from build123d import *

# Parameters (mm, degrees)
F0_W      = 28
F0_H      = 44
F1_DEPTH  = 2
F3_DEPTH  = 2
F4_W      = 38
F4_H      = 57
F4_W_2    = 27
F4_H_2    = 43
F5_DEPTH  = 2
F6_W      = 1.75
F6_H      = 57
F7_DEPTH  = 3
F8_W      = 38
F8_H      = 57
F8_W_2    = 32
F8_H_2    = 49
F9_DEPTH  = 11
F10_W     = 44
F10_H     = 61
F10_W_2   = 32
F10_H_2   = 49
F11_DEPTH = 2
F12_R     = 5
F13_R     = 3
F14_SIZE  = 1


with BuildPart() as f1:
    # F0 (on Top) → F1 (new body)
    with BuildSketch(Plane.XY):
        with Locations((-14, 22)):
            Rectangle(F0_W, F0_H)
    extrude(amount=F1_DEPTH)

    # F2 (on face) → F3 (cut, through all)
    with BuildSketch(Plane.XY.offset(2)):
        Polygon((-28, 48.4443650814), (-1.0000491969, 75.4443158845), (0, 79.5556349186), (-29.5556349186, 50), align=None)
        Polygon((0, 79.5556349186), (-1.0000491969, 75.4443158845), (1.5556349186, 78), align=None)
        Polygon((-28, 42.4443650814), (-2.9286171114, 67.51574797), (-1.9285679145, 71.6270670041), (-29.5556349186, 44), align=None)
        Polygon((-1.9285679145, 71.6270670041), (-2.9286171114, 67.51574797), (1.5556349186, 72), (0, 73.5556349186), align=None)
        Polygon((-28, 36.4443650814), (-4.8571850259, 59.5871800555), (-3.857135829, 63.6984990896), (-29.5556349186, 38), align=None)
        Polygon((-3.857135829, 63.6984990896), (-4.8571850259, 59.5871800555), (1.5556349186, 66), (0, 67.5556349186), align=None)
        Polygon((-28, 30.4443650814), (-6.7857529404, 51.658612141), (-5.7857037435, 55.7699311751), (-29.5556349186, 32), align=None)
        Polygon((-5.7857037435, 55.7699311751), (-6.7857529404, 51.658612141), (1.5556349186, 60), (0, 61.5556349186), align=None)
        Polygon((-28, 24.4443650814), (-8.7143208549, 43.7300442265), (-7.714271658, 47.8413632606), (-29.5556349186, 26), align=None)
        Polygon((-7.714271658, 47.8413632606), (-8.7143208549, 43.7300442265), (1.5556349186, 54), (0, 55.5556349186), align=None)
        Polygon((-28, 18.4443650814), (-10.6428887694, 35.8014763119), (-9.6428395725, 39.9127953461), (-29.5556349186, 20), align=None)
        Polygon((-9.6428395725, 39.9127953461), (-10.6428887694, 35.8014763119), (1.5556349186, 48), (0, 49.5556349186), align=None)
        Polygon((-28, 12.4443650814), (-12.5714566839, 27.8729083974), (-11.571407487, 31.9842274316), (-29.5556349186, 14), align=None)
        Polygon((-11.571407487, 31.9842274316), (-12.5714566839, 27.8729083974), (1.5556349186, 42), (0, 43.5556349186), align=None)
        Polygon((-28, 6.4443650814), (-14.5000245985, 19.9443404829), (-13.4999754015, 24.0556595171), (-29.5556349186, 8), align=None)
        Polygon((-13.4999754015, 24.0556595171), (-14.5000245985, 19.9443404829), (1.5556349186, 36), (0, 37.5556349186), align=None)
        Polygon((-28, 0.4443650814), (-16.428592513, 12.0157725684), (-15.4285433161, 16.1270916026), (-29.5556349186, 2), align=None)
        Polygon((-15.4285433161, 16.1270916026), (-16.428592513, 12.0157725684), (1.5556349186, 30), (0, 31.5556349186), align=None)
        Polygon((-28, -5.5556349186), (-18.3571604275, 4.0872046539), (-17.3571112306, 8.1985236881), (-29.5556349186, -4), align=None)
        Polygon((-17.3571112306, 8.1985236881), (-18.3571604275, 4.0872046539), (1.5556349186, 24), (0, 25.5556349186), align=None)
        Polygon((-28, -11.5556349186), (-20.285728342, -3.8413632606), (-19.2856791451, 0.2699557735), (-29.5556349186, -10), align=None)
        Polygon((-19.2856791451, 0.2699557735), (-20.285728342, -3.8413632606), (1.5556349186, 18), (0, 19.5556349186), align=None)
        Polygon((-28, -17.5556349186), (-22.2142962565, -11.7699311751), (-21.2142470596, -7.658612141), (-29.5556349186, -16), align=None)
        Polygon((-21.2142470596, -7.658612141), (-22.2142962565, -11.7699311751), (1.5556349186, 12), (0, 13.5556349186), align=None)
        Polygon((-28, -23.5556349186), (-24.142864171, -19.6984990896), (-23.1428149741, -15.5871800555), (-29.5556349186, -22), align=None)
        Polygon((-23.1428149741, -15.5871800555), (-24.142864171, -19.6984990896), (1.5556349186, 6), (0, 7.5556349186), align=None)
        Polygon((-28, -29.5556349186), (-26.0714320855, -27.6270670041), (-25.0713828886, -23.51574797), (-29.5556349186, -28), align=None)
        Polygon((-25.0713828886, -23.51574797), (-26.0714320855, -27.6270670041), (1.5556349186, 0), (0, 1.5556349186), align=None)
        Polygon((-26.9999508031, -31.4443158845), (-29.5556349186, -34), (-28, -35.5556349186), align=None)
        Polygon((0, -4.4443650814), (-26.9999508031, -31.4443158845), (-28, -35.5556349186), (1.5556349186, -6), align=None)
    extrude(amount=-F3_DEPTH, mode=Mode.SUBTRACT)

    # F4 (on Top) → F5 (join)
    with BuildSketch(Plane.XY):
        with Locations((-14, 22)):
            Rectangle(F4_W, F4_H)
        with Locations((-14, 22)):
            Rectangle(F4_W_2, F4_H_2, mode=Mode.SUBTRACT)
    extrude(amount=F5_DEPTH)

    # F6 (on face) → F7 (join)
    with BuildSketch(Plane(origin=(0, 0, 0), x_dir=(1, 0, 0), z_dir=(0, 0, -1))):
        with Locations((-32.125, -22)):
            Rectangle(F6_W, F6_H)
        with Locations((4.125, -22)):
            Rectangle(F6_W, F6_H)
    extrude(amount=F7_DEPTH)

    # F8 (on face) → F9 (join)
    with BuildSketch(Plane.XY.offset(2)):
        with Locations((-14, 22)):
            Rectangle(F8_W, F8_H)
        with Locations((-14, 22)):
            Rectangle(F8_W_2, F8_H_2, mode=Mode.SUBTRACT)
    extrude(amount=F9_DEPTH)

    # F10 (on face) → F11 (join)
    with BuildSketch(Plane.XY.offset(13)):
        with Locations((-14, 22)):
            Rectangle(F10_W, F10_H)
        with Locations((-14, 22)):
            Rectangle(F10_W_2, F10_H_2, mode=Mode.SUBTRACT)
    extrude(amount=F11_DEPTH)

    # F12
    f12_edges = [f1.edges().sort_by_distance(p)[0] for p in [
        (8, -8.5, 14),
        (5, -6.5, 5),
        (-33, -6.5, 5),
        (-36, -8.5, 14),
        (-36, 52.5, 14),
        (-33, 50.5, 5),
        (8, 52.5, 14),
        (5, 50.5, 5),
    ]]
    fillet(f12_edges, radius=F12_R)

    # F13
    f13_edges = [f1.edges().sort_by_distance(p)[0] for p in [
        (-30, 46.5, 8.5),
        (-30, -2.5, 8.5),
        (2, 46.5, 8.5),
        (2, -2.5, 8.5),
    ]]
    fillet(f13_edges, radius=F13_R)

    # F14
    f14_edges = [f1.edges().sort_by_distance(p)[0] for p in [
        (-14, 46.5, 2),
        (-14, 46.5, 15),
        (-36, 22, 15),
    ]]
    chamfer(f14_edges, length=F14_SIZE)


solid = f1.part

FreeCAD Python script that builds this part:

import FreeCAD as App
import Part
import Sketcher

V = App.Vector
Q = App.Units.Quantity


def edges_at(feature, points):
    """Names of the edges that pass closest to the given points."""
    edges = feature.Shape.Edges
    near = lambda p: min(range(len(edges)), key=lambda i: edges[i].distToShape(Part.Vertex(*p))[0])
    return sorted({f"Edge{near(p) + 1}" for p in points})

doc = App.newDocument("Part")
body = doc.addObject("PartDesign::Body", "Body")
body.AllowCompound = True

# Sketch on XY plane
sketch1 = body.newObject("Sketcher::SketchObject", "Sketch")
sketch1.AttachmentSupport = (doc.getObject("XY_Plane"), [""])
sketch1.MapMode = "FlatFace"
sketch1.addGeometry(Part.LineSegment(V(-28, 44, 0), V(-28, 0, 0)), False)
sketch1.addGeometry(Part.LineSegment(V(-28, 0, 0), V(0, 0, 0)), False)
sketch1.addGeometry(Part.LineSegment(V(0, 0, 0), V(0, 44, 0)), False)
sketch1.addGeometry(Part.LineSegment(V(0, 44, 0), V(-28, 44, 0)), False)
sketch1.addConstraint(Sketcher.Constraint("Coincident", 0, 2, 1, 1))
sketch1.addConstraint(Sketcher.Constraint("Coincident", 1, 2, 2, 1))
sketch1.addConstraint(Sketcher.Constraint("Coincident", 2, 2, 3, 1))
sketch1.addConstraint(Sketcher.Constraint("Coincident", 3, 2, 0, 1))
sketch1.addConstraint(Sketcher.Constraint("Vertical", 0))
sketch1.addConstraint(Sketcher.Constraint("Horizontal", 1))
sketch1.addConstraint(Sketcher.Constraint("Vertical", 2))
sketch1.addConstraint(Sketcher.Constraint("Horizontal", 3))
sketch1.addConstraint(Sketcher.Constraint("Coincident", 1, 2, -1, 1))
sketch1.addConstraint(Sketcher.Constraint("DistanceX", 1, 1, 1, 2, Q("28 mm")))
sketch1.addConstraint(Sketcher.Constraint("DistanceY", 0, 2, 0, 1, Q("44 mm")))
pad1 = body.newObject("PartDesign::Pad", "Pad")
pad1.Profile = sketch1
pad1.Length = 2

# Sketch on XY plane
sketch2 = body.newObject("Sketcher::SketchObject", "Sketch001")
sketch2.AttachmentSupport = (doc.getObject("XY_Plane"), [""])
sketch2.MapMode = "FlatFace"
sketch2.AttachmentOffset = App.Placement(V(0, 0, 2), App.Rotation())
sketch2.addGeometry(Part.LineSegment(V(-28, 48.4, 0), V(1.6, 78, 0)), False)
sketch2.addGeometry(Part.LineSegment(V(1.6, 78, 0), V(0, 79.6, 0)), False)
sketch2.addGeometry(Part.LineSegment(V(0, 79.6, 0), V(-29.6, 50, 0)), False)
sketch2.addGeometry(Part.LineSegment(V(-29.6, 50, 0), V(-28, 48.4, 0)), False)
sketch2.addGeometry(Part.LineSegment(V(-28, 42.4, 0), V(1.6, 72, 0)), False)
sketch2.addGeometry(Part.LineSegment(V(1.6, 72, 0), V(0, 73.6, 0)), False)
sketch2.addGeometry(Part.LineSegment(V(0, 73.6, 0), V(-29.6, 44, 0)), False)
sketch2.addGeometry(Part.LineSegment(V(-29.6, 44, 0), V(-28, 42.4, 0)), False)
sketch2.addGeometry(Part.LineSegment(V(-28, 36.4, 0), V(1.6, 66, 0)), False)
sketch2.addGeometry(Part.LineSegment(V(1.6, 66, 0), V(0, 67.6, 0)), False)
sketch2.addGeometry(Part.LineSegment(V(0, 67.6, 0), V(-29.6, 38, 0)), False)
sketch2.addGeometry(Part.LineSegment(V(-29.6, 38, 0), V(-28, 36.4, 0)), False)
sketch2.addGeometry(Part.LineSegment(V(-28, 30.4, 0), V(1.6, 60, 0)), False)
sketch2.addGeometry(Part.LineSegment(V(1.6, 60, 0), V(0, 61.6, 0)), False)
sketch2.addGeometry(Part.LineSegment(V(0, 61.6, 0), V(-29.6, 32, 0)), False)
sketch2.addGeometry(Part.LineSegment(V(-29.6, 32, 0), V(-28, 30.4, 0)), False)
sketch2.addGeometry(Part.LineSegment(V(-28, 24.4, 0), V(1.6, 54, 0)), False)
sketch2.addGeometry(Part.LineSegment(V(1.6, 54, 0), V(0, 55.6, 0)), False)
sketch2.addGeometry(Part.LineSegment(V(0, 55.6, 0), V(-29.6, 26, 0)), False)
sketch2.addGeometry(Part.LineSegment(V(-29.6, 26, 0), V(-28, 24.4, 0)), False)
sketch2.addGeometry(Part.LineSegment(V(-28, 18.4, 0), V(-10.6, 35.8, 0)), False)
sketch2.addGeometry(Part.LineSegment(V(-10.6, 35.8, 0), V(1.6, 48, 0)), False)
sketch2.addGeometry(Part.LineSegment(V(1.6, 48, 0), V(0, 49.6, 0)), False)
sketch2.addGeometry(Part.LineSegment(V(0, 49.6, 0), V(-29.6, 20, 0)), False)
sketch2.addGeometry(Part.LineSegment(V(-29.6, 20, 0), V(-28, 18.4, 0)), False)
sketch2.addGeometry(Part.LineSegment(V(-28, 12.4, 0), V(-12.6, 27.9, 0)), False)
sketch2.addGeometry(Part.LineSegment(V(-12.6, 27.9, 0), V(1.6, 42, 0)), False)
sketch2.addGeometry(Part.LineSegment(V(1.6, 42, 0), V(0, 43.6, 0)), False)
sketch2.addGeometry(Part.LineSegment(V(0, 43.6, 0), V(-29.6, 14, 0)), False)
sketch2.addGeometry(Part.LineSegment(V(-29.6, 14, 0), V(-28, 12.4, 0)), False)
sketch2.addGeometry(Part.LineSegment(V(-28, 6.4, 0), V(1.6, 36, 0)), False)
sketch2.addGeometry(Part.LineSegment(V(1.6, 36, 0), V(0, 37.6, 0)), False)
sketch2.addGeometry(Part.LineSegment(V(0, 37.6, 0), V(-29.6, 8, 0)), False)
sketch2.addGeometry(Part.LineSegment(V(-29.6, 8, 0), V(-28, 6.4, 0)), False)
sketch2.addGeometry(Part.LineSegment(V(-28, 0.4, 0), V(1.6, 30, 0)), False)
sketch2.addGeometry(Part.LineSegment(V(1.6, 30, 0), V(0, 31.6, 0)), False)
sketch2.addGeometry(Part.LineSegment(V(0, 31.6, 0), V(-15.4, 16.1, 0)), False)
sketch2.addGeometry(Part.LineSegment(V(-15.4, 16.1, 0), V(-29.6, 2, 0)), False)
sketch2.addGeometry(Part.LineSegment(V(-29.6, 2, 0), V(-28, 0.4, 0)), False)
sketch2.addGeometry(Part.LineSegment(V(-28, -5.6, 0), V(1.6, 24, 0)), False)
sketch2.addGeometry(Part.LineSegment(V(1.6, 24, 0), V(0, 25.6, 0)), False)
sketch2.addGeometry(Part.LineSegment(V(0, 25.6, 0), V(-17.4, 8.2, 0)), False)
sketch2.addGeometry(Part.LineSegment(V(-17.4, 8.2, 0), V(-29.6, -4, 0)), False)
sketch2.addGeometry(Part.LineSegment(V(-29.6, -4, 0), V(-28, -5.6, 0)), False)
sketch2.addGeometry(Part.LineSegment(V(-28, -11.6, 0), V(1.6, 18, 0)), False)
sketch2.addGeometry(Part.LineSegment(V(1.6, 18, 0), V(0, 19.6, 0)), False)
sketch2.addGeometry(Part.LineSegment(V(0, 19.6, 0), V(-29.6, -10, 0)), False)
sketch2.addGeometry(Part.LineSegment(V(-29.6, -10, 0), V(-28, -11.6, 0)), False)
sketch2.addGeometry(Part.LineSegment(V(-28, -17.6, 0), V(1.6, 12, 0)), False)
sketch2.addGeometry(Part.LineSegment(V(1.6, 12, 0), V(0, 13.6, 0)), False)
sketch2.addGeometry(Part.LineSegment(V(0, 13.6, 0), V(-29.6, -16, 0)), False)
sketch2.addGeometry(Part.LineSegment(V(-29.6, -16, 0), V(-28, -17.6, 0)), False)
sketch2.addGeometry(Part.LineSegment(V(-28, -23.6, 0), V(1.6, 6, 0)), False)
sketch2.addGeometry(Part.LineSegment(V(1.6, 6, 0), V(0, 7.6, 0)), False)
sketch2.addGeometry(Part.LineSegment(V(0, 7.6, 0), V(-29.6, -22, 0)), False)
sketch2.addGeometry(Part.LineSegment(V(-29.6, -22, 0), V(-28, -23.6, 0)), False)
sketch2.addGeometry(Part.LineSegment(V(-28, -29.6, 0), V(1.6, 0, 0)), False)
sketch2.addGeometry(Part.LineSegment(V(1.6, 0, 0), V(0, 1.6, 0)), False)
sketch2.addGeometry(Part.LineSegment(V(0, 1.6, 0), V(-29.6, -28, 0)), False)
sketch2.addGeometry(Part.LineSegment(V(-29.6, -28, 0), V(-28, -29.6, 0)), False)
sketch2.addGeometry(Part.LineSegment(V(-29.6, -34, 0), V(-28, -35.6, 0)), False)
sketch2.addGeometry(Part.LineSegment(V(-28, -35.6, 0), V(1.6, -6, 0)), False)
sketch2.addGeometry(Part.LineSegment(V(1.6, -6, 0), V(0, -4.4, 0)), False)
sketch2.addGeometry(Part.LineSegment(V(0, -4.4, 0), V(-29.6, -34, 0)), False)
sketch2.addConstraint(Sketcher.Constraint("Coincident", 0, 2, 1, 1))
sketch2.addConstraint(Sketcher.Constraint("Coincident", 1, 2, 2, 1))
sketch2.addConstraint(Sketcher.Constraint("Coincident", 2, 2, 3, 1))
sketch2.addConstraint(Sketcher.Constraint("Coincident", 3, 2, 0, 1))
sketch2.addConstraint(Sketcher.Constraint("Coincident", 4, 2, 5, 1))
sketch2.addConstraint(Sketcher.Constraint("Coincident", 5, 2, 6, 1))
sketch2.addConstraint(Sketcher.Constraint("Coincident", 6, 2, 7, 1))
sketch2.addConstraint(Sketcher.Constraint("Coincident", 7, 2, 4, 1))
sketch2.addConstraint(Sketcher.Constraint("Coincident", 8, 2, 9, 1))
sketch2.addConstraint(Sketcher.Constraint("Coincident", 9, 2, 10, 1))
sketch2.addConstraint(Sketcher.Constraint("Coincident", 10, 2, 11, 1))
sketch2.addConstraint(Sketcher.Constraint("Coincident", 11, 2, 8, 1))
sketch2.addConstraint(Sketcher.Constraint("Coincident", 12, 2, 13, 1))
sketch2.addConstraint(Sketcher.Constraint("Coincident", 13, 2, 14, 1))
sketch2.addConstraint(Sketcher.Constraint("Coincident", 14, 2, 15, 1))
sketch2.addConstraint(Sketcher.Constraint("Coincident", 15, 2, 12, 1))
sketch2.addConstraint(Sketcher.Constraint("Coincident", 16, 2, 17, 1))
sketch2.addConstraint(Sketcher.Constraint("Coincident", 17, 2, 18, 1))
sketch2.addConstraint(Sketcher.Constraint("Coincident", 18, 2, 19, 1))
sketch2.addConstraint(Sketcher.Constraint("Coincident", 19, 2, 16, 1))
sketch2.addConstraint(Sketcher.Constraint("Coincident", 20, 2, 21, 1))
sketch2.addConstraint(Sketcher.Constraint("Coincident", 21, 2, 22, 1))
sketch2.addConstraint(Sketcher.Constraint("Coincident", 22, 2, 23, 1))
sketch2.addConstraint(Sketcher.Constraint("Coincident", 23, 2, 24, 1))
sketch2.addConstraint(Sketcher.Constraint("Coincident", 24, 2, 20, 1))
sketch2.addConstraint(Sketcher.Constraint("Coincident", 25, 2, 26, 1))
sketch2.addConstraint(Sketcher.Constraint("Coincident", 26, 2, 27, 1))
sketch2.addConstraint(Sketcher.Constraint("Coincident", 27, 2, 28, 1))
sketch2.addConstraint(Sketcher.Constraint("Coincident", 28, 2, 29, 1))
sketch2.addConstraint(Sketcher.Constraint("Coincident", 29, 2, 25, 1))
sketch2.addConstraint(Sketcher.Constraint("Coincident", 30, 2, 31, 1))
sketch2.addConstraint(Sketcher.Constraint("Coincident", 31, 2, 32, 1))
sketch2.addConstraint(Sketcher.Constraint("Coincident", 32, 2, 33, 1))
sketch2.addConstraint(Sketcher.Constraint("Coincident", 33, 2, 30, 1))
sketch2.addConstraint(Sketcher.Constraint("Coincident", 34, 2, 35, 1))
sketch2.addConstraint(Sketcher.Constraint("Coincident", 35, 2, 36, 1))
sketch2.addConstraint(Sketcher.Constraint("Coincident", 36, 2, 37, 1))
sketch2.addConstraint(Sketcher.Constraint("Coincident", 37, 2, 38, 1))
sketch2.addConstraint(Sketcher.Constraint("Coincident", 38, 2, 34, 1))
sketch2.addConstraint(Sketcher.Constraint("Coincident", 39, 2, 40, 1))
sketch2.addConstraint(Sketcher.Constraint("Coincident", 40, 2, 41, 1))
sketch2.addConstraint(Sketcher.Constraint("Coincident", 41, 2, 42, 1))
sketch2.addConstraint(Sketcher.Constraint("Coincident", 42, 2, 43, 1))
sketch2.addConstraint(Sketcher.Constraint("Coincident", 43, 2, 39, 1))
sketch2.addConstraint(Sketcher.Constraint("Coincident", 44, 2, 45, 1))
sketch2.addConstraint(Sketcher.Constraint("Coincident", 45, 2, 46, 1))
sketch2.addConstraint(Sketcher.Constraint("Coincident", 46, 2, 47, 1))
sketch2.addConstraint(Sketcher.Constraint("Coincident", 47, 2, 44, 1))
sketch2.addConstraint(Sketcher.Constraint("Coincident", 48, 2, 49, 1))
sketch2.addConstraint(Sketcher.Constraint("Coincident", 49, 2, 50, 1))
sketch2.addConstraint(Sketcher.Constraint("Coincident", 50, 2, 51, 1))
sketch2.addConstraint(Sketcher.Constraint("Coincident", 51, 2, 48, 1))
sketch2.addConstraint(Sketcher.Constraint("Coincident", 52, 2, 53, 1))
sketch2.addConstraint(Sketcher.Constraint("Coincident", 53, 2, 54, 1))
sketch2.addConstraint(Sketcher.Constraint("Coincident", 54, 2, 55, 1))
sketch2.addConstraint(Sketcher.Constraint("Coincident", 55, 2, 52, 1))
sketch2.addConstraint(Sketcher.Constraint("Coincident", 56, 2, 57, 1))
sketch2.addConstraint(Sketcher.Constraint("Coincident", 57, 2, 58, 1))
sketch2.addConstraint(Sketcher.Constraint("Coincident", 58, 2, 59, 1))
sketch2.addConstraint(Sketcher.Constraint("Coincident", 59, 2, 56, 1))
sketch2.addConstraint(Sketcher.Constraint("Coincident", 60, 2, 61, 1))
sketch2.addConstraint(Sketcher.Constraint("Coincident", 61, 2, 62, 1))
sketch2.addConstraint(Sketcher.Constraint("Coincident", 62, 2, 63, 1))
sketch2.addConstraint(Sketcher.Constraint("Coincident", 63, 2, 60, 1))
sketch2.addConstraint(Sketcher.Constraint("Symmetric", 52, 2, 61, 2, -1))
sketch2.addConstraint(Sketcher.Constraint("PointOnObject", 1, 2, -2))
sketch2.addConstraint(Sketcher.Constraint("PointOnObject", 5, 2, -2))
sketch2.addConstraint(Sketcher.Constraint("PointOnObject", 9, 2, -2))
sketch2.addConstraint(Sketcher.Constraint("PointOnObject", 13, 2, -2))
sketch2.addConstraint(Sketcher.Constraint("PointOnObject", 17, 2, -2))
sketch2.addConstraint(Sketcher.Constraint("PointOnObject", 22, 2, -2))
sketch2.addConstraint(Sketcher.Constraint("PointOnObject", 27, 2, -2))
sketch2.addConstraint(Sketcher.Constraint("PointOnObject", 31, 2, -2))
sketch2.addConstraint(Sketcher.Constraint("PointOnObject", 35, 2, -2))
sketch2.addConstraint(Sketcher.Constraint("PointOnObject", 40, 2, -2))
sketch2.addConstraint(Sketcher.Constraint("PointOnObject", 45, 2, -2))
sketch2.addConstraint(Sketcher.Constraint("PointOnObject", 49, 2, -2))
sketch2.addConstraint(Sketcher.Constraint("PointOnObject", 53, 2, -2))
sketch2.addConstraint(Sketcher.Constraint("PointOnObject", 56, 2, -1))
sketch2.addConstraint(Sketcher.Constraint("PointOnObject", 57, 2, -2))
sketch2.addConstraint(Sketcher.Constraint("PointOnObject", 62, 2, -2))
sketch2.addConstraint(Sketcher.Constraint("Perpendicular", 0, 1))
sketch2.addConstraint(Sketcher.Constraint("Perpendicular", 1, 2))
sketch2.addConstraint(Sketcher.Constraint("Perpendicular", 2, 3))
sketch2.addConstraint(Sketcher.Constraint("Perpendicular", 3, 4))
sketch2.addConstraint(Sketcher.Constraint("Perpendicular", 4, 5))
sketch2.addConstraint(Sketcher.Constraint("Perpendicular", 5, 6))
sketch2.addConstraint(Sketcher.Constraint("Perpendicular", 6, 7))
sketch2.addConstraint(Sketcher.Constraint("Perpendicular", 7, 8))
sketch2.addConstraint(Sketcher.Constraint("Perpendicular", 8, 9))
sketch2.addConstraint(Sketcher.Constraint("Perpendicular", 9, 10))
sketch2.addConstraint(Sketcher.Constraint("Perpendicular", 10, 11))
sketch2.addConstraint(Sketcher.Constraint("Perpendicular", 11, 12))
sketch2.addConstraint(Sketcher.Constraint("Perpendicular", 12, 13))
sketch2.addConstraint(Sketcher.Constraint("Perpendicular", 13, 14))
sketch2.addConstraint(Sketcher.Constraint("Perpendicular", 14, 15))
sketch2.addConstraint(Sketcher.Constraint("Perpendicular", 15, 16))
sketch2.addConstraint(Sketcher.Constraint("Perpendicular", 16, 17))
sketch2.addConstraint(Sketcher.Constraint("Perpendicular", 17, 18))
sketch2.addConstraint(Sketcher.Constraint("Perpendicular", 18, 19))
sketch2.addConstraint(Sketcher.Constraint("Perpendicular", 19, 20))
sketch2.addConstraint(Sketcher.Constraint("Parallel", 20, 21))
sketch2.addConstraint(Sketcher.Constraint("Perpendicular", 21, 22))
sketch2.addConstraint(Sketcher.Constraint("Perpendicular", 22, 23))
sketch2.addConstraint(Sketcher.Constraint("Perpendicular", 23, 24))
sketch2.addConstraint(Sketcher.Constraint("Perpendicular", 24, 25))
sketch2.addConstraint(Sketcher.Constraint("Parallel", 25, 26))
sketch2.addConstraint(Sketcher.Constraint("Perpendicular", 26, 27))
sketch2.addConstraint(Sketcher.Constraint("Perpendicular", 27, 28))
sketch2.addConstraint(Sketcher.Constraint("Perpendicular", 28, 29))
sketch2.addConstraint(Sketcher.Constraint("Perpendicular", 29, 30))
sketch2.addConstraint(Sketcher.Constraint("Perpendicular", 30, 31))
sketch2.addConstraint(Sketcher.Constraint("Perpendicular", 31, 32))
sketch2.addConstraint(Sketcher.Constraint("Perpendicular", 32, 33))
sketch2.addConstraint(Sketcher.Constraint("Perpendicular", 33, 34))
sketch2.addConstraint(Sketcher.Constraint("Perpendicular", 34, 35))
sketch2.addConstraint(Sketcher.Constraint("Perpendicular", 35, 36))
sketch2.addConstraint(Sketcher.Constraint("Parallel", 36, 37))
sketch2.addConstraint(Sketcher.Constraint("Perpendicular", 37, 38))
sketch2.addConstraint(Sketcher.Constraint("Perpendicular", 38, 39))
sketch2.addConstraint(Sketcher.Constraint("Perpendicular", 39, 40))
sketch2.addConstraint(Sketcher.Constraint("Perpendicular", 40, 41))
sketch2.addConstraint(Sketcher.Constraint("Parallel", 41, 42))
sketch2.addConstraint(Sketcher.Constraint("Perpendicular", 42, 43))
sketch2.addConstraint(Sketcher.Constraint("Perpendicular", 43, 44))
sketch2.addConstraint(Sketcher.Constraint("Perpendicular", 44, 45))
sketch2.addConstraint(Sketcher.Constraint("Perpendicular", 45, 46))
sketch2.addConstraint(Sketcher.Constraint("Perpendicular", 46, 47))
sketch2.addConstraint(Sketcher.Constraint("Perpendicular", 47, 48))
sketch2.addConstraint(Sketcher.Constraint("Perpendicular", 48, 49))
sketch2.addConstraint(Sketcher.Constraint("Perpendicular", 49, 50))
sketch2.addConstraint(Sketcher.Constraint("Perpendicular", 50, 51))
sketch2.addConstraint(Sketcher.Constraint("Perpendicular", 51, 52))
sketch2.addConstraint(Sketcher.Constraint("Perpendicular", 52, 53))
sketch2.addConstraint(Sketcher.Constraint("Perpendicular", 53, 54))
sketch2.addConstraint(Sketcher.Constraint("Perpendicular", 54, 55))
sketch2.addConstraint(Sketcher.Constraint("Perpendicular", 55, 56))
sketch2.addConstraint(Sketcher.Constraint("Perpendicular", 56, 57))
sketch2.addConstraint(Sketcher.Constraint("Perpendicular", 57, 58))
sketch2.addConstraint(Sketcher.Constraint("Perpendicular", 58, 59))
sketch2.addConstraint(Sketcher.Constraint("Parallel", 59, 60))
sketch2.addConstraint(Sketcher.Constraint("Perpendicular", 60, 61))
sketch2.addConstraint(Sketcher.Constraint("Perpendicular", 61, 62))
sketch2.addConstraint(Sketcher.Constraint("Perpendicular", 62, 63))
sketch2.addConstraint(Sketcher.Constraint("Vertical", 0, 2, 4, 2))
sketch2.addConstraint(Sketcher.Constraint("Vertical", 2, 2, 6, 2))
sketch2.addConstraint(Sketcher.Constraint("Vertical", 4, 2, 8, 2))
sketch2.addConstraint(Sketcher.Constraint("Vertical", 6, 2, 10, 2))
sketch2.addConstraint(Sketcher.Constraint("Vertical", 8, 2, 12, 2))
sketch2.addConstraint(Sketcher.Constraint("Vertical", 10, 2, 14, 2))
sketch2.addConstraint(Sketcher.Constraint("Vertical", 12, 2, 16, 2))
sketch2.addConstraint(Sketcher.Constraint("Vertical", 14, 2, 18, 2))
sketch2.addConstraint(Sketcher.Constraint("Vertical", 16, 2, 21, 2))
sketch2.addConstraint(Sketcher.Constraint("Vertical", 18, 2, 23, 2))
sketch2.addConstraint(Sketcher.Constraint("Vertical", 21, 2, 26, 2))
sketch2.addConstraint(Sketcher.Constraint("Vertical", 23, 2, 28, 2))
sketch2.addConstraint(Sketcher.Constraint("Vertical", 26, 2, 30, 2))
sketch2.addConstraint(Sketcher.Constraint("Vertical", 28, 2, 32, 2))
sketch2.addConstraint(Sketcher.Constraint("Vertical", 30, 2, 34, 2))
sketch2.addConstraint(Sketcher.Constraint("Vertical", 32, 2, 37, 2))
sketch2.addConstraint(Sketcher.Constraint("Vertical", 34, 2, 39, 2))
sketch2.addConstraint(Sketcher.Constraint("Vertical", 37, 2, 42, 2))
sketch2.addConstraint(Sketcher.Constraint("Vertical", 39, 2, 44, 2))
sketch2.addConstraint(Sketcher.Constraint("Vertical", 42, 2, 46, 2))
sketch2.addConstraint(Sketcher.Constraint("Vertical", 44, 2, 48, 2))
sketch2.addConstraint(Sketcher.Constraint("Vertical", 46, 2, 50, 2))
sketch2.addConstraint(Sketcher.Constraint("Vertical", 48, 2, 52, 2))
sketch2.addConstraint(Sketcher.Constraint("Vertical", 50, 2, 54, 2))
sketch2.addConstraint(Sketcher.Constraint("Vertical", 52, 2, 56, 2))
sketch2.addConstraint(Sketcher.Constraint("Vertical", 54, 2, 58, 2))
sketch2.addConstraint(Sketcher.Constraint("Vertical", 59, 2, 60, 2))
sketch2.addConstraint(Sketcher.Constraint("Equal", 25, 36))
sketch2.addConstraint(Sketcher.Constraint("Equal", 20, 41))
sketch2.addConstraint(Sketcher.Constraint("Angle", 0, Q("45 deg")))
sketch2.addConstraint(Sketcher.Constraint("DistanceY", -1, 1, 0, 2, Q("78 mm")))
sketch2.addConstraint(Sketcher.Constraint("DistanceY", -1, 1, 2, 2, Q("50 mm")))
sketch2.addConstraint(Sketcher.Constraint("DistanceY", -1, 1, 4, 2, Q("72 mm")))
sketch2.addConstraint(Sketcher.Constraint("DistanceY", -1, 1, 8, 2, Q("66 mm")))
sketch2.addConstraint(Sketcher.Constraint("DistanceY", -1, 1, 12, 2, Q("60 mm")))
sketch2.addConstraint(Sketcher.Constraint("DistanceY", -1, 1, 16, 2, Q("54 mm")))
sketch2.addConstraint(Sketcher.Constraint("DistanceY", -1, 1, 21, 2, Q("48 mm")))
sketch2.addConstraint(Sketcher.Constraint("DistanceY", -1, 1, 26, 2, Q("42 mm")))
sketch2.addConstraint(Sketcher.Constraint("DistanceY", -1, 1, 30, 2, Q("36 mm")))
sketch2.addConstraint(Sketcher.Constraint("DistanceY", -1, 1, 34, 2, Q("30 mm")))
sketch2.addConstraint(Sketcher.Constraint("DistanceY", -1, 1, 39, 2, Q("24 mm")))
sketch2.addConstraint(Sketcher.Constraint("DistanceY", -1, 1, 44, 2, Q("18 mm")))
sketch2.addConstraint(Sketcher.Constraint("DistanceY", -1, 1, 48, 2, Q("12 mm")))
sketch2.addConstraint(Sketcher.Constraint("DistanceY", -1, 1, 52, 2, Q("6 mm")))
sketch2.addConstraint(Sketcher.Constraint("Distance", 1, Q("2.2 mm")))
sketch2.addConstraint(Sketcher.Constraint("DistanceX", 20, 2, -1, 1, Q("10.642889 mm")))
sketch2.addConstraint(Sketcher.Constraint("DistanceY", -1, 1, 25, 2, Q("27.872908 mm")))
pocket1 = body.newObject("PartDesign::Pocket", "Pocket")
pocket1.Profile = sketch2
pocket1.Type = "ThroughAll"

# Sketch on XY plane
sketch3 = body.newObject("Sketcher::SketchObject", "Sketch002")
sketch3.AttachmentSupport = (doc.getObject("XY_Plane"), [""])
sketch3.MapMode = "FlatFace"
sketch3.addGeometry(Part.LineSegment(V(-33, 50, 0), V(-33, -6, 0)), False)
sketch3.addGeometry(Part.LineSegment(V(-33, -6, 0), V(5, -6, 0)), False)
sketch3.addGeometry(Part.LineSegment(V(5, -6, 0), V(5, 50, 0)), False)
sketch3.addGeometry(Part.LineSegment(V(5, 50, 0), V(-33, 50, 0)), False)
sketch3.addGeometry(Part.LineSegment(V(0, 0, 0), V(-28, 0, 0)), False)
sketch3.addGeometry(Part.LineSegment(V(-28, 0, 0), V(-28, 44, 0)), False)
sketch3.addGeometry(Part.LineSegment(V(-28, 44, 0), V(0, 44, 0)), False)
sketch3.addGeometry(Part.LineSegment(V(0, 44, 0), V(0, 0, 0)), False)
sketch3.addConstraint(Sketcher.Constraint("Coincident", 0, 2, 1, 1))
sketch3.addConstraint(Sketcher.Constraint("Coincident", 1, 2, 2, 1))
sketch3.addConstraint(Sketcher.Constraint("Coincident", 2, 2, 3, 1))
sketch3.addConstraint(Sketcher.Constraint("Coincident", 3, 2, 0, 1))
sketch3.addConstraint(Sketcher.Constraint("Coincident", 4, 2, 5, 1))
sketch3.addConstraint(Sketcher.Constraint("Coincident", 5, 2, 6, 1))
sketch3.addConstraint(Sketcher.Constraint("Coincident", 6, 2, 7, 1))
sketch3.addConstraint(Sketcher.Constraint("Coincident", 7, 2, 4, 1))
sketch3.addConstraint(Sketcher.Constraint("Vertical", 0))
sketch3.addConstraint(Sketcher.Constraint("Horizontal", 1))
sketch3.addConstraint(Sketcher.Constraint("Vertical", 2))
sketch3.addConstraint(Sketcher.Constraint("Horizontal", 3))
sketch3.addConstraint(Sketcher.Constraint("Horizontal", 4))
sketch3.addConstraint(Sketcher.Constraint("Vertical", 5))
sketch3.addConstraint(Sketcher.Constraint("Horizontal", 6))
sketch3.addConstraint(Sketcher.Constraint("Vertical", 7))
sketch3.addConstraint(Sketcher.Constraint("DistanceX", 1, 1, 1, 2, Q("38 mm")))
sketch3.addConstraint(Sketcher.Constraint("DistanceX", 4, 2, 4, 1, Q("27 mm")))
sketch3.addConstraint(Sketcher.Constraint("DistanceY", 0, 2, 0, 1, Q("57 mm")))
sketch3.addConstraint(Sketcher.Constraint("DistanceY", 5, 1, 5, 2, Q("43 mm")))
sketch3.addConstraint(Sketcher.Constraint("DistanceX", 0, 2, -1, 1, Q("33 mm")))
sketch3.addConstraint(Sketcher.Constraint("DistanceY", 0, 2, 4, 2, Q("7 mm")))
sketch3.addConstraint(Sketcher.Constraint("DistanceY", 0, 2, -1, 1, Q("6.5 mm")))
sketch3.addConstraint(Sketcher.Constraint("DistanceX", 4, 2, -1, 1, Q("27.5 mm")))
pad2 = body.newObject("PartDesign::Pad", "Pad001")
pad2.Profile = sketch3
pad2.Length = 2

# Sketch on XY plane
sketch4 = body.newObject("Sketcher::SketchObject", "Sketch003")
sketch4.AttachmentSupport = (doc.getObject("XY_Plane"), [""])
sketch4.MapMode = "FlatFace"
sketch4.addGeometry(Part.LineSegment(V(-33, -6.5, 0), V(-33, 50.5, 0)), False)
sketch4.addGeometry(Part.LineSegment(V(-33, 50.5, 0), V(-31.2, 50.5, 0)), False)
sketch4.addGeometry(Part.LineSegment(V(-31.2, 50.5, 0), V(-31.2, -6.5, 0)), False)
sketch4.addGeometry(Part.LineSegment(V(-31.2, -6.5, 0), V(-33, -6.5, 0)), False)
sketch4.addGeometry(Part.LineSegment(V(3.2, -6.5, 0), V(3.2, 50.5, 0)), False)
sketch4.addGeometry(Part.LineSegment(V(3.2, 50.5, 0), V(5, 50.5, 0)), False)
sketch4.addGeometry(Part.LineSegment(V(5, 50.5, 0), V(5, -6.5, 0)), False)
sketch4.addGeometry(Part.LineSegment(V(5, -6.5, 0), V(3.2, -6.5, 0)), False)
sketch4.addConstraint(Sketcher.Constraint("Coincident", 0, 2, 1, 1))
sketch4.addConstraint(Sketcher.Constraint("Coincident", 1, 2, 2, 1))
sketch4.addConstraint(Sketcher.Constraint("Coincident", 2, 2, 3, 1))
sketch4.addConstraint(Sketcher.Constraint("Coincident", 3, 2, 0, 1))
sketch4.addConstraint(Sketcher.Constraint("Coincident", 4, 2, 5, 1))
sketch4.addConstraint(Sketcher.Constraint("Coincident", 5, 2, 6, 1))
sketch4.addConstraint(Sketcher.Constraint("Coincident", 6, 2, 7, 1))
sketch4.addConstraint(Sketcher.Constraint("Coincident", 7, 2, 4, 1))
sketch4.addConstraint(Sketcher.Constraint("Vertical", 0))
sketch4.addConstraint(Sketcher.Constraint("Horizontal", 1))
sketch4.addConstraint(Sketcher.Constraint("Vertical", 2))
sketch4.addConstraint(Sketcher.Constraint("Horizontal", 3))
sketch4.addConstraint(Sketcher.Constraint("Vertical", 4))
sketch4.addConstraint(Sketcher.Constraint("Horizontal", 5))
sketch4.addConstraint(Sketcher.Constraint("Vertical", 6))
sketch4.addConstraint(Sketcher.Constraint("Horizontal", 7))
sketch4.addConstraint(Sketcher.Constraint("Horizontal", 1, 2, 4, 2))
sketch4.addConstraint(Sketcher.Constraint("Horizontal", 3, 2, 6, 2))
sketch4.addConstraint(Sketcher.Constraint("Equal", 3, 5))
sketch4.addConstraint(Sketcher.Constraint("DistanceY", 0, 1, 0, 2, Q("57 mm")))
sketch4.addConstraint(Sketcher.Constraint("DistanceX", 0, 2, -1, 1, Q("33 mm")))
sketch4.addConstraint(Sketcher.Constraint("DistanceX", -1, 1, 5, 2, Q("5 mm")))
sketch4.addConstraint(Sketcher.Constraint("DistanceX", 1, 1, 1, 2, Q("1.75 mm")))
sketch4.addConstraint(Sketcher.Constraint("DistanceY", -1, 1, 0, 2, Q("50.5 mm")))
pad3 = body.newObject("PartDesign::Pad", "Pad002")
pad3.Profile = sketch4
pad3.Length = 3
pad3.Reversed = True

# Sketch on XY plane
sketch5 = body.newObject("Sketcher::SketchObject", "Sketch004")
sketch5.AttachmentSupport = (doc.getObject("XY_Plane"), [""])
sketch5.MapMode = "FlatFace"
sketch5.AttachmentOffset = App.Placement(V(0, 0, 2), App.Rotation())
sketch5.addGeometry(Part.LineSegment(V(-33, 50, 0), V(-33, -6, 0)), False)
sketch5.addGeometry(Part.LineSegment(V(-33, -6, 0), V(5, -6, 0)), False)
sketch5.addGeometry(Part.LineSegment(V(5, -6, 0), V(5, 50, 0)), False)
sketch5.addGeometry(Part.LineSegment(V(5, 50, 0), V(-33, 50, 0)), False)
sketch5.addGeometry(Part.LineSegment(V(2, -2, 0), V(-30, -2, 0)), False)
sketch5.addGeometry(Part.LineSegment(V(-30, -2, 0), V(-30, 46, 0)), False)
sketch5.addGeometry(Part.LineSegment(V(-30, 46, 0), V(2, 46, 0)), False)
sketch5.addGeometry(Part.LineSegment(V(2, 46, 0), V(2, -2, 0)), False)
sketch5.addConstraint(Sketcher.Constraint("Coincident", 0, 2, 1, 1))
sketch5.addConstraint(Sketcher.Constraint("Coincident", 1, 2, 2, 1))
sketch5.addConstraint(Sketcher.Constraint("Coincident", 2, 2, 3, 1))
sketch5.addConstraint(Sketcher.Constraint("Coincident", 3, 2, 0, 1))
sketch5.addConstraint(Sketcher.Constraint("Coincident", 4, 2, 5, 1))
sketch5.addConstraint(Sketcher.Constraint("Coincident", 5, 2, 6, 1))
sketch5.addConstraint(Sketcher.Constraint("Coincident", 6, 2, 7, 1))
sketch5.addConstraint(Sketcher.Constraint("Coincident", 7, 2, 4, 1))
sketch5.addConstraint(Sketcher.Constraint("Vertical", 0))
sketch5.addConstraint(Sketcher.Constraint("Horizontal", 1))
sketch5.addConstraint(Sketcher.Constraint("Vertical", 2))
sketch5.addConstraint(Sketcher.Constraint("Horizontal", 3))
sketch5.addConstraint(Sketcher.Constraint("Horizontal", 4))
sketch5.addConstraint(Sketcher.Constraint("Vertical", 5))
sketch5.addConstraint(Sketcher.Constraint("Horizontal", 6))
sketch5.addConstraint(Sketcher.Constraint("Vertical", 7))
sketch5.addConstraint(Sketcher.Constraint("DistanceX", 1, 1, 1, 2, Q("38 mm")))
sketch5.addConstraint(Sketcher.Constraint("DistanceX", 4, 2, 4, 1, Q("32 mm")))
sketch5.addConstraint(Sketcher.Constraint("DistanceY", 0, 2, 0, 1, Q("57 mm")))
sketch5.addConstraint(Sketcher.Constraint("DistanceY", 5, 1, 5, 2, Q("49 mm")))
sketch5.addConstraint(Sketcher.Constraint("DistanceX", 0, 2, -1, 1, Q("33 mm")))
sketch5.addConstraint(Sketcher.Constraint("DistanceX", 4, 2, -1, 1, Q("30 mm")))
sketch5.addConstraint(Sketcher.Constraint("DistanceY", 0, 2, 4, 2, Q("4 mm")))
sketch5.addConstraint(Sketcher.Constraint("DistanceY", 0, 2, -1, 1, Q("6.5 mm")))
pad4 = body.newObject("PartDesign::Pad", "Pad003")
pad4.Profile = sketch5
pad4.Length = 11

# Sketch on XY plane
sketch6 = body.newObject("Sketcher::SketchObject", "Sketch005")
sketch6.AttachmentSupport = (doc.getObject("XY_Plane"), [""])
sketch6.MapMode = "FlatFace"
sketch6.AttachmentOffset = App.Placement(V(0, 0, 13), App.Rotation())
sketch6.addGeometry(Part.LineSegment(V(-36, 52, 0), V(-36, -8, 0)), False)
sketch6.addGeometry(Part.LineSegment(V(-36, -8, 0), V(8, -8, 0)), False)
sketch6.addGeometry(Part.LineSegment(V(8, -8, 0), V(8, 52, 0)), False)
sketch6.addGeometry(Part.LineSegment(V(8, 52, 0), V(-36, 52, 0)), False)
sketch6.addGeometry(Part.LineSegment(V(2, -2, 0), V(-30, -2, 0)), False)
sketch6.addGeometry(Part.LineSegment(V(-30, -2, 0), V(-30, 46, 0)), False)
sketch6.addGeometry(Part.LineSegment(V(-30, 46, 0), V(2, 46, 0)), False)
sketch6.addGeometry(Part.LineSegment(V(2, 46, 0), V(2, -2, 0)), False)
sketch6.addConstraint(Sketcher.Constraint("Coincident", 0, 2, 1, 1))
sketch6.addConstraint(Sketcher.Constraint("Coincident", 1, 2, 2, 1))
sketch6.addConstraint(Sketcher.Constraint("Coincident", 2, 2, 3, 1))
sketch6.addConstraint(Sketcher.Constraint("Coincident", 3, 2, 0, 1))
sketch6.addConstraint(Sketcher.Constraint("Coincident", 4, 2, 5, 1))
sketch6.addConstraint(Sketcher.Constraint("Coincident", 5, 2, 6, 1))
sketch6.addConstraint(Sketcher.Constraint("Coincident", 6, 2, 7, 1))
sketch6.addConstraint(Sketcher.Constraint("Coincident", 7, 2, 4, 1))
sketch6.addConstraint(Sketcher.Constraint("Vertical", 0))
sketch6.addConstraint(Sketcher.Constraint("Horizontal", 1))
sketch6.addConstraint(Sketcher.Constraint("Vertical", 2))
sketch6.addConstraint(Sketcher.Constraint("Horizontal", 3))
sketch6.addConstraint(Sketcher.Constraint("Horizontal", 4))
sketch6.addConstraint(Sketcher.Constraint("Vertical", 5))
sketch6.addConstraint(Sketcher.Constraint("Horizontal", 6))
sketch6.addConstraint(Sketcher.Constraint("Vertical", 7))
sketch6.addConstraint(Sketcher.Constraint("DistanceX", 1, 1, 1, 2, Q("44 mm")))
sketch6.addConstraint(Sketcher.Constraint("DistanceX", 4, 2, 4, 1, Q("32 mm")))
sketch6.addConstraint(Sketcher.Constraint("DistanceY", 0, 2, 0, 1, Q("61 mm")))
sketch6.addConstraint(Sketcher.Constraint("DistanceY", 5, 1, 5, 2, Q("49 mm")))
sketch6.addConstraint(Sketcher.Constraint("DistanceX", 0, 2, -1, 1, Q("36 mm")))
sketch6.addConstraint(Sketcher.Constraint("DistanceX", 4, 2, -1, 1, Q("30 mm")))
sketch6.addConstraint(Sketcher.Constraint("DistanceY", 0, 2, 4, 2, Q("6 mm")))
sketch6.addConstraint(Sketcher.Constraint("DistanceY", 0, 2, -1, 1, Q("8.5 mm")))
pad5 = body.newObject("PartDesign::Pad", "Pad004")
pad5.Profile = sketch6
pad5.Length = 2
doc.recompute()

fillet = body.newObject("PartDesign::Fillet", "Fillet")
fillet.Base = (pad5, edges_at(pad5, [
    (8, -8.5, 14),
    (5, -6.5, 5),
    (-33, -6.5, 5),
    (-36, -8.5, 14),
    (-36, 52.5, 14),
    (-33, 50.5, 5),
    (8, 52.5, 14),
    (5, 50.5, 5),
]))
fillet.Radius = 5
doc.recompute()

fillet2 = body.newObject("PartDesign::Fillet", "Fillet001")
fillet2.Base = (fillet, edges_at(fillet, [
    (-30, 46.5, 8.5),
    (-30, -2.5, 8.5),
    (2, 46.5, 8.5),
    (2, -2.5, 8.5),
]))
fillet2.Radius = 3
doc.recompute()

chamfer = body.newObject("PartDesign::Chamfer", "Chamfer")
chamfer.Base = (fillet2, edges_at(fillet2, [(-14, 46.5, 2), (-14, 46.5, 15), (-36, 22, 15)]))
chamfer.Size = 1

doc.recompute()
